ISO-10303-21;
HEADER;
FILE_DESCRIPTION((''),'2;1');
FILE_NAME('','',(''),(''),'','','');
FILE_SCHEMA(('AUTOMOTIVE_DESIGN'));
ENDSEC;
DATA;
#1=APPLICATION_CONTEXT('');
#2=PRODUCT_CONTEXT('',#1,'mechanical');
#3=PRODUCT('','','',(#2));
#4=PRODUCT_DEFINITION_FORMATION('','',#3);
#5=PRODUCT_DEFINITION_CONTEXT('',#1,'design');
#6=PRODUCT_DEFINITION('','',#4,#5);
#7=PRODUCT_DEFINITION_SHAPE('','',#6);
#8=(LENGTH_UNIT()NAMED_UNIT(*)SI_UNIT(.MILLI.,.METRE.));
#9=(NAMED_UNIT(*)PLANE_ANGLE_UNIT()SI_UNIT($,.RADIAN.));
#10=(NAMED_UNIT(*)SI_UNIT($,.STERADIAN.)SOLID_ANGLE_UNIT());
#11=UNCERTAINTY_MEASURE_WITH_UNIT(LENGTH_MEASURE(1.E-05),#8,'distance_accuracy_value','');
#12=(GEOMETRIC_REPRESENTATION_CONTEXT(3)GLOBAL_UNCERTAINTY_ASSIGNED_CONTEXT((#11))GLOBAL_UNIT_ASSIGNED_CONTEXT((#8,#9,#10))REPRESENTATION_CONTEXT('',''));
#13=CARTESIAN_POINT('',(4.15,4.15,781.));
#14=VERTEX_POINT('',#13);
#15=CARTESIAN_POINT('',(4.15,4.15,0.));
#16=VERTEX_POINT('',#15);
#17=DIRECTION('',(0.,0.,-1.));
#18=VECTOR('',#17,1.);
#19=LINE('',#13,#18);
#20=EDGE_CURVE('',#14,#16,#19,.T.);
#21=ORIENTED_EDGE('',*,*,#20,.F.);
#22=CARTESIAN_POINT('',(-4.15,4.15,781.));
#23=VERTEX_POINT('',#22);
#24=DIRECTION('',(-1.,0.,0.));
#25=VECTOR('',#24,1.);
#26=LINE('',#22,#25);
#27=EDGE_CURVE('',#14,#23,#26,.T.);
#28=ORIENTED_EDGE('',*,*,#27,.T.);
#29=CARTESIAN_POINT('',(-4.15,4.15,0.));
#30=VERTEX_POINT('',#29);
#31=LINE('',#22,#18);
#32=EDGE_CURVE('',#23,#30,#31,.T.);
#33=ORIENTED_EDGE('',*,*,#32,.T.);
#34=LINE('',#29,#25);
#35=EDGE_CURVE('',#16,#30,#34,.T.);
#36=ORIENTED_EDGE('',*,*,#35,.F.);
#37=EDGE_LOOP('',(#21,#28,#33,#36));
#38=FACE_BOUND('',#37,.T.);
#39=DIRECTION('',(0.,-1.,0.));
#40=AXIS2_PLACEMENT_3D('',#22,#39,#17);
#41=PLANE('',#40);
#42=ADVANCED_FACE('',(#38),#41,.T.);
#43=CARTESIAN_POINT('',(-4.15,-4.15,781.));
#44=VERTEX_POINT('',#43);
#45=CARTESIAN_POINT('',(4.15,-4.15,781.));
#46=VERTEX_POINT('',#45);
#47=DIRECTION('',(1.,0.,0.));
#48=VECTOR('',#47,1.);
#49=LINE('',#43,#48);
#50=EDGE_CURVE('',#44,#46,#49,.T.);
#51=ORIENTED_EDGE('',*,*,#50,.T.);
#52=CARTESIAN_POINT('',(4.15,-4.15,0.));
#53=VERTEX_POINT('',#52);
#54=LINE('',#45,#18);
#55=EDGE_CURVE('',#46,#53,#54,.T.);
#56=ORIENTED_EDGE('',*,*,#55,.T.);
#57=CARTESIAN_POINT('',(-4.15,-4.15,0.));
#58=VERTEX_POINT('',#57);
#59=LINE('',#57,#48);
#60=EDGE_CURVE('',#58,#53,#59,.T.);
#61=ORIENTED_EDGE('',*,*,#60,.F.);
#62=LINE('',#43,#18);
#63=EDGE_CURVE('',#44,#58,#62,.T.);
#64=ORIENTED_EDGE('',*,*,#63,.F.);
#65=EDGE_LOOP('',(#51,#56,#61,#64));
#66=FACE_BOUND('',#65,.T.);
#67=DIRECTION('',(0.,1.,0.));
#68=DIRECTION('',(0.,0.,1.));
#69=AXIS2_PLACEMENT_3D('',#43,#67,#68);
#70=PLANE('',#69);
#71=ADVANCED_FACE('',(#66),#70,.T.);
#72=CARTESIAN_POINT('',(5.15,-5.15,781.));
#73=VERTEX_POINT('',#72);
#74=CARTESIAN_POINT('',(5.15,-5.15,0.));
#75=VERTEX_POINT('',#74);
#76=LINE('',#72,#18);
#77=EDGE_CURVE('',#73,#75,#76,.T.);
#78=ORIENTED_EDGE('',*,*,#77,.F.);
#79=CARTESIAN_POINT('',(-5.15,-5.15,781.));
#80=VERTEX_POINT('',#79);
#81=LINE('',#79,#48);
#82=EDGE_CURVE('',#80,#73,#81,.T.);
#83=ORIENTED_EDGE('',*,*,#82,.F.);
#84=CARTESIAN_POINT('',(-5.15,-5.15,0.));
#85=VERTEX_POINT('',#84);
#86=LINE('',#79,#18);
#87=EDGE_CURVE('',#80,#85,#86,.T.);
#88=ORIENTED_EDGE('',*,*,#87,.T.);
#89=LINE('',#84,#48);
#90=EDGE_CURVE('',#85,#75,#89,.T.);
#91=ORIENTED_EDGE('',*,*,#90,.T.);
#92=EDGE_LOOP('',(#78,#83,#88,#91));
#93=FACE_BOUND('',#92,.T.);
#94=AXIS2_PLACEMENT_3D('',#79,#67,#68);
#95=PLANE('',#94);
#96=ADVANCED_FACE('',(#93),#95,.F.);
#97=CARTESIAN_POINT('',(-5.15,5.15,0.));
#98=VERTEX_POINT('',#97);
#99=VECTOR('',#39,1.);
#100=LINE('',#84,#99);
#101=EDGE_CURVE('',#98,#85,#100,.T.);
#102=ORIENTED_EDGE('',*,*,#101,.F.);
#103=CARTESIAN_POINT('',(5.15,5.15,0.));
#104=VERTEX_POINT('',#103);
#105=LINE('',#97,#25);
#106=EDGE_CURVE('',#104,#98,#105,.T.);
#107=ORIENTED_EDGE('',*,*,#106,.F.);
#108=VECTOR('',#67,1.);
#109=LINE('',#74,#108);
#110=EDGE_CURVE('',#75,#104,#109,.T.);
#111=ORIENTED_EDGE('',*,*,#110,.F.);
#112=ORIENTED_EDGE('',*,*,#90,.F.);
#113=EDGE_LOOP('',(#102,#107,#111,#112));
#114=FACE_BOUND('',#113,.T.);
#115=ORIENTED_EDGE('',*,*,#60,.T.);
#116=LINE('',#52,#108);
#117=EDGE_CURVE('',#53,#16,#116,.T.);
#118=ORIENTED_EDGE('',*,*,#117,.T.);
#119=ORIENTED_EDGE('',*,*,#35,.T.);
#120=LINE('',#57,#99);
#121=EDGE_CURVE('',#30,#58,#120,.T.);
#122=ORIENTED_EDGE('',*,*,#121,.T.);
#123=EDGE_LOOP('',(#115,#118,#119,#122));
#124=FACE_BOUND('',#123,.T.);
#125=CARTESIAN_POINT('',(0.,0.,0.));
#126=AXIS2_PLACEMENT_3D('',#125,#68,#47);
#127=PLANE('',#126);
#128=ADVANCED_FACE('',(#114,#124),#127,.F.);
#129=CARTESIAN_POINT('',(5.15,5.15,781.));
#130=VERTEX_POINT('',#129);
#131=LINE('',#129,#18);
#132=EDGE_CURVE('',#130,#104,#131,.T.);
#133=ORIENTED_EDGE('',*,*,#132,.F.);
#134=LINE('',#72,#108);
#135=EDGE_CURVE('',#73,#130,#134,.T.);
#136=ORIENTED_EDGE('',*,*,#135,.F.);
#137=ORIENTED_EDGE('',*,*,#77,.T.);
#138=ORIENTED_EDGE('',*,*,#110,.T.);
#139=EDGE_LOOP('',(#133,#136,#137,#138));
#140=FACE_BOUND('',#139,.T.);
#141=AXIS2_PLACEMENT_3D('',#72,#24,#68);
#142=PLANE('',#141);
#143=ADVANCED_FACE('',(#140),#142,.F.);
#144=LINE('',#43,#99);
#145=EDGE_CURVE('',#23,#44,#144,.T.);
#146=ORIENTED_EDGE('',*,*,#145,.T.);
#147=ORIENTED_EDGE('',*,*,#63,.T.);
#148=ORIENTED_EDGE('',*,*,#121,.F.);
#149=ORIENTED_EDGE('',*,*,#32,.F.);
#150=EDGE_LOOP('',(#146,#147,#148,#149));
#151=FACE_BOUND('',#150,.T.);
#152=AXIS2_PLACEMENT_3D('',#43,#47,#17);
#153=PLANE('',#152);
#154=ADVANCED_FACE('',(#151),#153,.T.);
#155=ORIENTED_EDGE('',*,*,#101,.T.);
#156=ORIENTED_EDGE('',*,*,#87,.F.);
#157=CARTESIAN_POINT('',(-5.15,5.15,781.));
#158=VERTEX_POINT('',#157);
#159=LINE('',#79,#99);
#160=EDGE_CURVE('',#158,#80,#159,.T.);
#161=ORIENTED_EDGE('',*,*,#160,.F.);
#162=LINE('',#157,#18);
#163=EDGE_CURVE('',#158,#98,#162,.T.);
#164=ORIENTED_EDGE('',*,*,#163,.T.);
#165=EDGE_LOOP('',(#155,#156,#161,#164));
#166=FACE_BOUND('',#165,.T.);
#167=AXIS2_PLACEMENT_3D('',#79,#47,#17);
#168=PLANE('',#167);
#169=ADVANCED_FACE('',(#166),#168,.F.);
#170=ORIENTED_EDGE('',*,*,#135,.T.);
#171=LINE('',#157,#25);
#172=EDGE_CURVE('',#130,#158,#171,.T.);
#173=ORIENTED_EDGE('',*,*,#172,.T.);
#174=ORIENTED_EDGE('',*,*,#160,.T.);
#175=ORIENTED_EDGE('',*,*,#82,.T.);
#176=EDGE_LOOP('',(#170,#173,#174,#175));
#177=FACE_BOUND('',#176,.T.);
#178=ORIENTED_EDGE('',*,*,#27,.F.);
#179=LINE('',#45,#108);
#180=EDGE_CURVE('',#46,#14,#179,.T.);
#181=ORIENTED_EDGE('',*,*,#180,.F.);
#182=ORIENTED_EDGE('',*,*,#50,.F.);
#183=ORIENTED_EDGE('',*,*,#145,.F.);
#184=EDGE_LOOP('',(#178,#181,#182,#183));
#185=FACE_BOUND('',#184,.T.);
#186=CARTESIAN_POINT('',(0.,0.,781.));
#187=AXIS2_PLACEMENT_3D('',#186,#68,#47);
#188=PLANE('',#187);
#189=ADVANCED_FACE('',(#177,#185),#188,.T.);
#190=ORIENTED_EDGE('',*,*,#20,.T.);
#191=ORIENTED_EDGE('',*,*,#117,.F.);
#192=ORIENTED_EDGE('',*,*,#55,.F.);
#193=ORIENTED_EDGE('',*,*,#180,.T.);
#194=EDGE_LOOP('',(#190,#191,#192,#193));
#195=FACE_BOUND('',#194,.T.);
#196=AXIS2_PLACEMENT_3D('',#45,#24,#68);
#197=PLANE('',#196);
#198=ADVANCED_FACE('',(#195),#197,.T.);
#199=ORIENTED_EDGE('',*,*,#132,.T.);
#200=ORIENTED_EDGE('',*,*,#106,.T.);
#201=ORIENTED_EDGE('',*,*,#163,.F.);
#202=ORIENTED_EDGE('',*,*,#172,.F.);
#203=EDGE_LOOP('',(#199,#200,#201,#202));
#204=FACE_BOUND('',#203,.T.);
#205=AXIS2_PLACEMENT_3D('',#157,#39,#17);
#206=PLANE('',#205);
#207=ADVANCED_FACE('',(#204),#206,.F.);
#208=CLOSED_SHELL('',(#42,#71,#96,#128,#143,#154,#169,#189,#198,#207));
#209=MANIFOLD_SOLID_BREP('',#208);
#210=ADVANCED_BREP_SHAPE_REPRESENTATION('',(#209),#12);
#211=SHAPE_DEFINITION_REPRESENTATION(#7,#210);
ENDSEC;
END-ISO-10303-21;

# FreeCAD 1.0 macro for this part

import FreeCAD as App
import Part
import Sketcher
from FreeCAD import Vector
Q = App.Units.Quantity


def add_polygon(sketch, points):
    """Adds a closed chain of lines whose ends are joined by coincident constraints."""
    first, n = sketch.GeometryCount, len(points)
    for a, b in zip(points, points[1:] + points[:1]):
        sketch.addGeometry(Part.LineSegment(App.Vector(*a, 0), App.Vector(*b, 0)), False)
    for i in range(n):
        sketch.addConstraint(Sketcher.Constraint("Coincident", first + i, 2, first + (i + 1) % n, 1))

doc = App.newDocument("Part")
params = doc.addObject("Spreadsheet::Sheet", "Params")
for row, (alias, value) in enumerate([
    ("sketch1_width", "10.3 mm"),
    ("sketch1_width2", "8.3 mm"),
    ("pad1_length", "781 mm"),
], start=1):
    params.set(f"A{row}", alias)
    params.set(f"B{row}", "=" + value)
    params.setAlias(f"B{row}", alias)

body = doc.addObject("PartDesign::Body", "Body")

# Sketch on XY plane
sketch1 = body.newObject("Sketcher::SketchObject", "Sketch")
sketch1.AttachmentSupport = (doc.getObject("XY_Plane"), [""])
sketch1.MapMode = "FlatFace"
add_polygon(sketch1, [(-5, 5), (-5, -5), (5, -5), (5, 5)])  # lines 0-3
add_polygon(sketch1, [(4, -4), (-4, -4), (-4, 4), (4, 4)])  # lines 4-7
sketch1.addConstraint([
    Sketcher.Constraint("Vertical", 0),
    Sketcher.Constraint("Horizontal", 1),
    Sketcher.Constraint("Vertical", 2),
    Sketcher.Constraint("Horizontal", 3),
    Sketcher.Constraint("Horizontal", 4),
    Sketcher.Constraint("Vertical", 5),
    Sketcher.Constraint("Horizontal", 6),
    Sketcher.Constraint("Vertical", 7),
    Sketcher.Constraint("Symmetric", 0, 2, 2, 2, -1, 1),
    Sketcher.Constraint("Symmetric", 4, 2, 6, 2, -1, 1),
    Sketcher.Constraint("Equal", 3, 0),
    Sketcher.Constraint("Equal", 6, 5),
    Sketcher.Constraint("DistanceX", 1, 1, 1, 2, Q("10.3 mm")),
    Sketcher.Constraint("DistanceX", 4, 2, 4, 1, Q("8.3 mm")),
])
sketch1.setExpression("Constraints[20]", "Params.sketch1_width")
sketch1.setExpression("Constraints[21]", "Params.sketch1_width2")
pad1 = body.newObject("PartDesign::Pad", "Pad")
pad1.Profile = sketch1
pad1.setExpression("Length", "Params.pad1_length")

doc.recompute()
